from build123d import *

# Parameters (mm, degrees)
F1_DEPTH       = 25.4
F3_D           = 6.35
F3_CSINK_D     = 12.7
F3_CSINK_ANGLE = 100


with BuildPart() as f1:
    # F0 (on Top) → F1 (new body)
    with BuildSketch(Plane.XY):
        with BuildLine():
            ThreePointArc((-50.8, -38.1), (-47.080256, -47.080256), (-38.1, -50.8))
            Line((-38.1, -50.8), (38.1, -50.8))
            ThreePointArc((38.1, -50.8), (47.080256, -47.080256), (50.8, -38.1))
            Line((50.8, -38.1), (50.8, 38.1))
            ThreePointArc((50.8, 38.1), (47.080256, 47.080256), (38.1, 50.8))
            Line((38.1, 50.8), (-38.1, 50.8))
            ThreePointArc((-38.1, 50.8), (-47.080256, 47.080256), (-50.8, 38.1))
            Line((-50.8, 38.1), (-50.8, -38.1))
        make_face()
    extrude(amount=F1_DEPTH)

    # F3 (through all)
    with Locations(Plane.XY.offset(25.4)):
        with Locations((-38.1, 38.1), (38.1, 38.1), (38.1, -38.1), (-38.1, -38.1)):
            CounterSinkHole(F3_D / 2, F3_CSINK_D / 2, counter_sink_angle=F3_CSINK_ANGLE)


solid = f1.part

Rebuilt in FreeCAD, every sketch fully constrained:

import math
import FreeCAD as App
import Part
import Sketcher
Q = App.Units.Quantity

doc = App.newDocument("Part")
body = doc.addObject("PartDesign::Body", "Body")

sketch1 = body.newObject("Sketcher::SketchObject", "Sketch")
sketch1.AttachmentSupport = (doc.getObject("XY_Plane"), [""])
sketch1.MapMode = "FlatFace"
sketch1.addGeometry([
    Part.ArcOfCircle(Part.Circle(App.Vector(-38.1, -38.1, 0), App.Vector(0, 0, 1), 12.7), math.radians(-179.999998), math.radians(-90.000002)),
    Part.LineSegment(App.Vector(-38.1, -50.8, 0), App.Vector(38.1, -50.8, 0)),
    Part.ArcOfCircle(Part.Circle(App.Vector(38.1, -38.1, 0), App.Vector(0, 0, 1), 12.7), math.radians(-89.999998), math.radians(-0.000002)),
    Part.LineSegment(App.Vector(50.8, -38.1, 0), App.Vector(50.8, 38.1, 0)),
    Part.ArcOfCircle(Part.Circle(App.Vector(38.1, 38.1, 0), App.Vector(0, 0, 1), 12.7), math.radians(0.000002), math.radians(89.999998)),
    Part.LineSegment(App.Vector(38.1, 50.8, 0), App.Vector(-38.1, 50.8, 0)),
    Part.ArcOfCircle(Part.Circle(App.Vector(-38.1, 38.1, 0), App.Vector(0, 0, 1), 12.7), math.radians(90.000002), math.radians(179.999998)),
    Part.LineSegment(App.Vector(-50.8, 38.1, 0), App.Vector(-50.8, -38.1, 0)),
], False)
sketch1.addConstraint([
    Sketcher.Constraint("Tangent", 0, 2, 1, 1),
    Sketcher.Constraint("Tangent", 1, 2, 2, 1),
    Sketcher.Constraint("Tangent", 2, 2, 3, 1),
    Sketcher.Constraint("Tangent", 3, 2, 4, 1),
    Sketcher.Constraint("Tangent", 4, 2, 5, 1),
    Sketcher.Constraint("Tangent", 5, 2, 6, 1),
    Sketcher.Constraint("Tangent", 6, 2, 7, 1),
    Sketcher.Constraint("Tangent", 7, 2, 0, 1),
    Sketcher.Constraint("Horizontal", 1),
    Sketcher.Constraint("Vertical", 3),
    Sketcher.Constraint("Horizontal", 5),
    Sketcher.Constraint("Vertical", 7),
    Sketcher.Constraint("Equal", 0, 2),
    Sketcher.Constraint("Equal", 2, 4),
    Sketcher.Constraint("Equal", 4, 6),
    Sketcher.Constraint("Symmetric", 0, 3, 4, 3, -1, 1),
    Sketcher.Constraint("Equal", 5, 3),
    Sketcher.Constraint("Radius", 0, Q("0.5 in")),
    Sketcher.Constraint("DistanceX", 1, 1, 1, 2, Q("3 in")),
])
pad1 = body.newObject("PartDesign::Pad", "Pad")
pad1.Profile = sketch1
pad1.Length = Q("1 in")

sketch2 = body.newObject("Sketcher::SketchObject", "Sketch001")
sketch2.AttachmentSupport = (doc.getObject("XY_Plane"), [""])
sketch2.MapMode = "FlatFace"
sketch2.AttachmentOffset = App.Placement(App.Vector(0, 0, 1 * 25.4), App.Rotation())
sketch2.addGeometry([
    Part.Circle(App.Vector(-38.1, 38.1, 0), App.Vector(0, 0, 1), 3.175),
    Part.Circle(App.Vector(38.1, 38.1, 0), App.Vector(0, 0, 1), 3.175),
    Part.Circle(App.Vector(38.1, -38.1, 0), App.Vector(0, 0, 1), 3.175),
    Part.Circle(App.Vector(-38.1, -38.1, 0), App.Vector(0, 0, 1), 3.175),
], False)
sketch2.addConstraint([
    Sketcher.Constraint("Equal", 0, 1),
    Sketcher.Constraint("Equal", 1, 2),
    Sketcher.Constraint("Equal", 2, 3),
    Sketcher.Constraint("Symmetric", 0, 3, 2, 3, -1, 1),
    Sketcher.Constraint("Symmetric", 1, 3, 3, 3, -1, 1),
    Sketcher.Constraint("Symmetric", 0, 3, 1, 3, -2),
    Sketcher.Constraint("Diameter", 0, Q("0.25 in")),
    Sketcher.Constraint("DistanceX", 0, 3, 1, 3, Q("3 in")),
    Sketcher.Constraint("DistanceY", 2, 3, 1, 3, Q("3 in")),
])
doc.recompute()
hole = body.newObject("PartDesign::Hole", "Hole")
hole.Profile = sketch2
hole.ThreadType = "None"
hole.Diameter = Q("0.25 in")
hole.DepthType = "ThroughAll"
hole.HoleCutType = "Countersink"
hole.HoleCutDiameter = Q("0.5 in")
hole.HoleCutCountersinkAngle = 100

doc.recompute()
